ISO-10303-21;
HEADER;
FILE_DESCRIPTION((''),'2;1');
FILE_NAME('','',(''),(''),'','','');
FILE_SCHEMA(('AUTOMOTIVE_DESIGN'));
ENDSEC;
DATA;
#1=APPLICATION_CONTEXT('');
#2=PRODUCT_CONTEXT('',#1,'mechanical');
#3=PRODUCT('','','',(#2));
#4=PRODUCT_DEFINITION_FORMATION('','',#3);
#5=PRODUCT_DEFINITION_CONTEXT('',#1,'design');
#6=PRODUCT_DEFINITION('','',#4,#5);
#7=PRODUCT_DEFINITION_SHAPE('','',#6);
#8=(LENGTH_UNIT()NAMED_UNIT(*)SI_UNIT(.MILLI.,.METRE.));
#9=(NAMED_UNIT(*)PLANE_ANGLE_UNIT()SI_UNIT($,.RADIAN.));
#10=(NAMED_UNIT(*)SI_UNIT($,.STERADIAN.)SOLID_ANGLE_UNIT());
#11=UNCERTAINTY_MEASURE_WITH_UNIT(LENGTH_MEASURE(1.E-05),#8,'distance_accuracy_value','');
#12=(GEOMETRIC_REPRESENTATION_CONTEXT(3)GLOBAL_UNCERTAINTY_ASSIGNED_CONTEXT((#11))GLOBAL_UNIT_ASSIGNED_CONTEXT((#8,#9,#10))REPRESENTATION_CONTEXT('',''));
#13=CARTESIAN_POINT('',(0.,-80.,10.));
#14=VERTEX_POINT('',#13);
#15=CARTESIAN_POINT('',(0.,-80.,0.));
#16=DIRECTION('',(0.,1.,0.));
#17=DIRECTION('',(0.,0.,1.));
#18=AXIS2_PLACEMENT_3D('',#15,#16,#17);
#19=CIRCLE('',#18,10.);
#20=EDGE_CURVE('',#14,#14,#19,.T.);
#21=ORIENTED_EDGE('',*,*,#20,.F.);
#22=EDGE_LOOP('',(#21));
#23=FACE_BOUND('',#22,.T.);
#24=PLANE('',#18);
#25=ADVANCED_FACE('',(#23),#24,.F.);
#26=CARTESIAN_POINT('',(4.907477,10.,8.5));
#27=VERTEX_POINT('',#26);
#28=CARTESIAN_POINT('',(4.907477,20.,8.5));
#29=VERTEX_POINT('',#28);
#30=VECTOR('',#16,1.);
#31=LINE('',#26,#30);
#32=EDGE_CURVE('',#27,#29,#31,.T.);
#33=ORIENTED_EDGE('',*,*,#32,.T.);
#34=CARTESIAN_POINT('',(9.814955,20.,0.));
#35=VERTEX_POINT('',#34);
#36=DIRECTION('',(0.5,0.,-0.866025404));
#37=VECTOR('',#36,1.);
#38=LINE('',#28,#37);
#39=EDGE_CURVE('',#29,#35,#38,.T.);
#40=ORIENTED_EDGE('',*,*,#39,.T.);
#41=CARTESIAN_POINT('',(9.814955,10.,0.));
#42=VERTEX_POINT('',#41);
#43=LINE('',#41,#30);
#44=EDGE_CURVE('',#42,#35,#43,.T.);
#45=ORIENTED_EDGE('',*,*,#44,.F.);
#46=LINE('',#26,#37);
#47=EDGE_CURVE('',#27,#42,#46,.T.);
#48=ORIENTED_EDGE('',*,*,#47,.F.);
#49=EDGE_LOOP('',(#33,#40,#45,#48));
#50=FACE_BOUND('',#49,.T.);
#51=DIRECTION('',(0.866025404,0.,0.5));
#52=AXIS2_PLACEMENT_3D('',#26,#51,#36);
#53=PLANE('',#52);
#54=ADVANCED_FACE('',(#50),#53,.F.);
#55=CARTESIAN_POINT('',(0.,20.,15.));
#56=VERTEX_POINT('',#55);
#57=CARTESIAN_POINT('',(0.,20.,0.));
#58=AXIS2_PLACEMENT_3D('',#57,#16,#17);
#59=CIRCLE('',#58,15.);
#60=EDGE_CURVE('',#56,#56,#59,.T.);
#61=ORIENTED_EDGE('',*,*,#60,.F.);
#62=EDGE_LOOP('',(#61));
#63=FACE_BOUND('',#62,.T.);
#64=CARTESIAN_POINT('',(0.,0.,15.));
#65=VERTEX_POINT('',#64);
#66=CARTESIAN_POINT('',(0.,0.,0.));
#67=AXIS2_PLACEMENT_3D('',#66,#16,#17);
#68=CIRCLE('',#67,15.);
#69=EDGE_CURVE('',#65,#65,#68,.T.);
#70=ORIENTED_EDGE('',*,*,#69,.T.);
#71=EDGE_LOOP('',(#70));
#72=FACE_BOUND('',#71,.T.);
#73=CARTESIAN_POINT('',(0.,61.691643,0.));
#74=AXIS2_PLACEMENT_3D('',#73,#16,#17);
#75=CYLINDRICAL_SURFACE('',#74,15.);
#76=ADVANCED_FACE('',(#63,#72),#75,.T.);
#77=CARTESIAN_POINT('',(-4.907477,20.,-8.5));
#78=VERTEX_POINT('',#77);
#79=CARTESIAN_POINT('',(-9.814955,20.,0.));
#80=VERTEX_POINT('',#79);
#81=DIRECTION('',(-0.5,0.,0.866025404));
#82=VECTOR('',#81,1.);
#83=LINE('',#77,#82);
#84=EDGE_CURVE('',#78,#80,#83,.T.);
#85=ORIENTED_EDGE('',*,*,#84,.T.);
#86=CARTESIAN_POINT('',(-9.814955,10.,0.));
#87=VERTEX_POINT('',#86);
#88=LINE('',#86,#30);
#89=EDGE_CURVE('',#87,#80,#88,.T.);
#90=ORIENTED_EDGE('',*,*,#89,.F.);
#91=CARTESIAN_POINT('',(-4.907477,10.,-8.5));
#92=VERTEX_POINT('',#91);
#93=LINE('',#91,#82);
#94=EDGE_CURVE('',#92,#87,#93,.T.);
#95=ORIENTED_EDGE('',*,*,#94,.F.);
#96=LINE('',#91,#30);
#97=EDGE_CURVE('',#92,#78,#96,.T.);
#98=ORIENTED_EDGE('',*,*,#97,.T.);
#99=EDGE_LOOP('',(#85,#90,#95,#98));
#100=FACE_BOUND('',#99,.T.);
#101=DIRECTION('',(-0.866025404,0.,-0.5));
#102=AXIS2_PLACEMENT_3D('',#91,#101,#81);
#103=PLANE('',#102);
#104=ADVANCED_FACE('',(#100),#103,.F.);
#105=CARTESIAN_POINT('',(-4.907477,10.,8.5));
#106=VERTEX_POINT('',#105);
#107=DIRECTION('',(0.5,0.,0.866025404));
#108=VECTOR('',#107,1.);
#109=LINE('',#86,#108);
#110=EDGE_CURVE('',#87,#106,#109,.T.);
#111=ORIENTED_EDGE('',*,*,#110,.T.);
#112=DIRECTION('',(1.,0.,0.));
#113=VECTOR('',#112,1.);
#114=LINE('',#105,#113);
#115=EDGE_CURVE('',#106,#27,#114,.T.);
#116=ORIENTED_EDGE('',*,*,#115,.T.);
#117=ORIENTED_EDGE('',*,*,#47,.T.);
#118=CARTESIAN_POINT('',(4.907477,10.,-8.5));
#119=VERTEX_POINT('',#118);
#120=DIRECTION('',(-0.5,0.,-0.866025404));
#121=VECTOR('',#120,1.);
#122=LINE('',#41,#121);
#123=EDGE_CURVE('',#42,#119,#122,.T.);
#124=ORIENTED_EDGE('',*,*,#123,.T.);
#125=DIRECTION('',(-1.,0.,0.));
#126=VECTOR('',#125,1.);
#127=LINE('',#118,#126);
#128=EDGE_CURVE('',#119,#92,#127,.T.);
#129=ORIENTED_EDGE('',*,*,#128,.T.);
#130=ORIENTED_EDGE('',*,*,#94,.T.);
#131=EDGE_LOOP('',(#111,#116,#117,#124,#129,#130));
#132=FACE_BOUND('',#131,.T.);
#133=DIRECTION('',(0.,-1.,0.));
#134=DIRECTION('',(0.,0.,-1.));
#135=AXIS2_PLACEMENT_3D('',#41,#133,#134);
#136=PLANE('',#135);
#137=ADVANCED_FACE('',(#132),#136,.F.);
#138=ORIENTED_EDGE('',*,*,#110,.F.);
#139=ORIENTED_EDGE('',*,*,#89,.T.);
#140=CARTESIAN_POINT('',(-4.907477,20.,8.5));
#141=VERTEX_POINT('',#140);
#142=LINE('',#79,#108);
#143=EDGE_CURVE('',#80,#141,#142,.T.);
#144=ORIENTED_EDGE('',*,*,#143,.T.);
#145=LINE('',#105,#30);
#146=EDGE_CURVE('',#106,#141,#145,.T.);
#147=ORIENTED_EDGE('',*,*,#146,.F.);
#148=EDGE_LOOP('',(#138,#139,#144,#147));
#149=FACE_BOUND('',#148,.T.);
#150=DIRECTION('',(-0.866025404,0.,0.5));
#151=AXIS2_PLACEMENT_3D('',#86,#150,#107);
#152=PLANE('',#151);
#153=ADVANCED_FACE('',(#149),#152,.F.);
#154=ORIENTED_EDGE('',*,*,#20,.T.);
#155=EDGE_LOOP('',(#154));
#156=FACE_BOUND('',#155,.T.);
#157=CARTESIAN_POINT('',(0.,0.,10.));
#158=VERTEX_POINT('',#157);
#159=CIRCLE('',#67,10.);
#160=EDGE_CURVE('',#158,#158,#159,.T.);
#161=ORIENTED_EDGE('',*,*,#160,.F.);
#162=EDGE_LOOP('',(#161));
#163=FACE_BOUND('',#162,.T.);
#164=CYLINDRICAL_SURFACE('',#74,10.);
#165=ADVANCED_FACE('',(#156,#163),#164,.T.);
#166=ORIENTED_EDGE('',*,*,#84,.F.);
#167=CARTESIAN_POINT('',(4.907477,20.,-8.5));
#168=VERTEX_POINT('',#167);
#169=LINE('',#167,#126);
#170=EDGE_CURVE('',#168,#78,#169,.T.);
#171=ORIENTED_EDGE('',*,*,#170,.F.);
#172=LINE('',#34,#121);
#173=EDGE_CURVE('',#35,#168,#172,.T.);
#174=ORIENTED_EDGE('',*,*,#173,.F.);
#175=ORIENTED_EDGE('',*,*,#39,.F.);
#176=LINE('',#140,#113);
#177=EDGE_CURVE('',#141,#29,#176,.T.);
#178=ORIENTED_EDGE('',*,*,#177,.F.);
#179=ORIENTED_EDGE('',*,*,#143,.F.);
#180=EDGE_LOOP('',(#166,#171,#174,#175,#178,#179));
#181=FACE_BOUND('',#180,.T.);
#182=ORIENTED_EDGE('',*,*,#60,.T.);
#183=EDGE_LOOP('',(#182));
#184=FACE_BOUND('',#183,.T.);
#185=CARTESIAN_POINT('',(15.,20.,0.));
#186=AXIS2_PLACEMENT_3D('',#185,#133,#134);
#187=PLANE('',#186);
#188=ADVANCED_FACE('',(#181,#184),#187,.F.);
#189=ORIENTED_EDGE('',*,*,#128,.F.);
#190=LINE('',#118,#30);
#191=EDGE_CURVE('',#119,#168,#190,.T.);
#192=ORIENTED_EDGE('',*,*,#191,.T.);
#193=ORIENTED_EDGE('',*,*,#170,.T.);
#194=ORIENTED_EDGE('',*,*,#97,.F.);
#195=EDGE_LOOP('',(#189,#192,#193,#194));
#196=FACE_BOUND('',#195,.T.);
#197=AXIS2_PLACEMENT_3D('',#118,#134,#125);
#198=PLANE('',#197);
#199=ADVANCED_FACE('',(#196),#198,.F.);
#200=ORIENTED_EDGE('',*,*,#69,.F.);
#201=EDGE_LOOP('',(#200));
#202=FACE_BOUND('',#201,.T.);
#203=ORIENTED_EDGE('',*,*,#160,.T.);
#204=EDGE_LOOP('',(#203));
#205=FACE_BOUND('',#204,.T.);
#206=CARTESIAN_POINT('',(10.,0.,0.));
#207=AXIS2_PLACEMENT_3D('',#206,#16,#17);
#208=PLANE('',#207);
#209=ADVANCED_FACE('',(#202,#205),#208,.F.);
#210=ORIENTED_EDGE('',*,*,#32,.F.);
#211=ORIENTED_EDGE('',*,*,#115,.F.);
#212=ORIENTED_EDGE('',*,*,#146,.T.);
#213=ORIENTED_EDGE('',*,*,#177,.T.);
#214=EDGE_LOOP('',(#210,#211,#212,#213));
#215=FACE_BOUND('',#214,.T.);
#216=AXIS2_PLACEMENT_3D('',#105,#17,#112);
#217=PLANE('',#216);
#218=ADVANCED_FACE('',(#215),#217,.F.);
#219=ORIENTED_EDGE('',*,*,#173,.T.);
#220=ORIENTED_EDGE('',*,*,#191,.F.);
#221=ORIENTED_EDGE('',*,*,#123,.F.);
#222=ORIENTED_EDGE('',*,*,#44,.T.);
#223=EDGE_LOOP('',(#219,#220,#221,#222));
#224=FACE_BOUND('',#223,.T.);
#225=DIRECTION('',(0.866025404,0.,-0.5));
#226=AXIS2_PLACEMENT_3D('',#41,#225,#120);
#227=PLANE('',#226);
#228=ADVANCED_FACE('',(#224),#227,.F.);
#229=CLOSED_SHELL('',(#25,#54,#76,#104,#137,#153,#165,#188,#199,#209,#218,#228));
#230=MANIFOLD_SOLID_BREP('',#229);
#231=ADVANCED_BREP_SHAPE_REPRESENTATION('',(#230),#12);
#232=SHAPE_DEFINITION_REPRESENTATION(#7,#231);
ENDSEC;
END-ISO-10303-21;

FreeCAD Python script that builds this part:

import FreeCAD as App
import Part
import Sketcher
from FreeCAD import Vector
Q = App.Units.Quantity

doc = App.newDocument("Part")
body = doc.addObject("PartDesign::Body", "Body")

# Sketch on XY plane
sketch1 = body.newObject("Sketcher::SketchObject", "Sketch")
sketch1.AttachmentSupport = (doc.getObject("XY_Plane"), [""])
sketch1.MapMode = "FlatFace"
sketch1.addGeometry(Part.LineSegment(Vector(0, -80, 0), Vector(10, -80, 0)), False)
sketch1.addGeometry(Part.LineSegment(Vector(10, -80, 0), Vector(10, 0, 0)), False)
sketch1.addGeometry(Part.LineSegment(Vector(10, 0, 0), Vector(15, 0, 0)), False)
sketch1.addGeometry(Part.LineSegment(Vector(15, 0, 0), Vector(15, 20, 0)), False)
sketch1.addGeometry(Part.LineSegment(Vector(15, 20, 0), Vector(0, 20, 0)), False)
sketch1.addGeometry(Part.LineSegment(Vector(0, 20, 0), Vector(0, -80, 0)), False)
sketch1.addConstraint(Sketcher.Constraint("Coincident", 0, 2, 1, 1))
sketch1.addConstraint(Sketcher.Constraint("Coincident", 1, 2, 2, 1))
sketch1.addConstraint(Sketcher.Constraint("Coincident", 2, 2, 3, 1))
sketch1.addConstraint(Sketcher.Constraint("Coincident", 3, 2, 4, 1))
sketch1.addConstraint(Sketcher.Constraint("Coincident", 4, 2, 5, 1))
sketch1.addConstraint(Sketcher.Constraint("Coincident", 5, 2, 0, 1))
sketch1.addConstraint(Sketcher.Constraint("Horizontal", 0))
sketch1.addConstraint(Sketcher.Constraint("Vertical", 1))
sketch1.addConstraint(Sketcher.Constraint("Horizontal", 2))
sketch1.addConstraint(Sketcher.Constraint("Vertical", 3))
sketch1.addConstraint(Sketcher.Constraint("Horizontal", 4))
sketch1.addConstraint(Sketcher.Constraint("Vertical", 5))
sketch1.addConstraint(Sketcher.Constraint("PointOnObject", 1, 2, -1))
sketch1.addConstraint(Sketcher.Constraint("PointOnObject", 4, 2, -2))
sketch1.addConstraint(Sketcher.Constraint("DistanceX", 0, 1, 0, 2, 10.0))
sketch1.addConstraint(Sketcher.Constraint("DistanceX", 2, 1, 2, 2, 5.0))
sketch1.addConstraint(Sketcher.Constraint("DistanceY", 1, 1, 1, 2, 80.0))
sketch1.addConstraint(Sketcher.Constraint("DistanceY", 3, 1, 3, 2, 20.0))
revolution = body.newObject("PartDesign::Revolution", "Revolution")
revolution.Profile = sketch1
revolution.ReferenceAxis = (sketch1, ["V_Axis"])
revolution.Angle = 360

# Sketch on XZ plane
sketch2 = body.newObject("Sketcher::SketchObject", "Sketch001")
sketch2.AttachmentSupport = (doc.getObject("XZ_Plane"), [""])
sketch2.MapMode = "FlatFace"
sketch2.AttachmentOffset = App.Placement(Vector(0, 0, -20), App.Rotation())
sketch2.addGeometry(Part.LineSegment(Vector(5, -8, 0), Vector(-5, -8, 0)), False)
sketch2.addGeometry(Part.LineSegment(Vector(-5, -8, 0), Vector(-10, 0, 0)), False)
sketch2.addGeometry(Part.LineSegment(Vector(-10, 0, 0), Vector(-5, 8, 0)), False)
sketch2.addGeometry(Part.LineSegment(Vector(-5, 8, 0), Vector(5, 8, 0)), False)
sketch2.addGeometry(Part.LineSegment(Vector(5, 8, 0), Vector(10, 0, 0)), False)
sketch2.addGeometry(Part.LineSegment(Vector(10, 0, 0), Vector(5, -8, 0)), False)
sketch2.addConstraint(Sketcher.Constraint("Coincident", 0, 2, 1, 1))
sketch2.addConstraint(Sketcher.Constraint("Coincident", 1, 2, 2, 1))
sketch2.addConstraint(Sketcher.Constraint("Coincident", 2, 2, 3, 1))
sketch2.addConstraint(Sketcher.Constraint("Coincident", 3, 2, 4, 1))
sketch2.addConstraint(Sketcher.Constraint("Coincident", 4, 2, 5, 1))
sketch2.addConstraint(Sketcher.Constraint("Coincident", 5, 2, 0, 1))
sketch2.addConstraint(Sketcher.Constraint("Horizontal", 0))
sketch2.addConstraint(Sketcher.Constraint("Horizontal", 3))
sketch2.addConstraint(Sketcher.Constraint("Symmetric", 0, 2, 3, 2, -1, 1))
sketch2.addConstraint(Sketcher.Constraint("Symmetric", 1, 2, 4, 2, -1, 1))
sketch2.addConstraint(Sketcher.Constraint("PointOnObject", 1, 2, -1))
sketch2.addConstraint(Sketcher.Constraint("Parallel", 2, 5))
sketch2.addConstraint(Sketcher.Constraint("Vertical", 0, 2, 2, 2))
sketch2.addConstraint(Sketcher.Constraint("Angle", 1, Q("120 deg")))
sketch2.addConstraint(Sketcher.Constraint("DistanceY", 0, 2, 2, 2, 17.0))
sketch2.addConstraint(Sketcher.Constraint("DistanceX", 0, 2, 0, 1, 9.814955))
pocket1 = body.newObject("PartDesign::Pocket", "Pocket")
pocket1.Profile = sketch2
pocket1.Length = 10
pocket1.Reversed = True

doc.recompute()
